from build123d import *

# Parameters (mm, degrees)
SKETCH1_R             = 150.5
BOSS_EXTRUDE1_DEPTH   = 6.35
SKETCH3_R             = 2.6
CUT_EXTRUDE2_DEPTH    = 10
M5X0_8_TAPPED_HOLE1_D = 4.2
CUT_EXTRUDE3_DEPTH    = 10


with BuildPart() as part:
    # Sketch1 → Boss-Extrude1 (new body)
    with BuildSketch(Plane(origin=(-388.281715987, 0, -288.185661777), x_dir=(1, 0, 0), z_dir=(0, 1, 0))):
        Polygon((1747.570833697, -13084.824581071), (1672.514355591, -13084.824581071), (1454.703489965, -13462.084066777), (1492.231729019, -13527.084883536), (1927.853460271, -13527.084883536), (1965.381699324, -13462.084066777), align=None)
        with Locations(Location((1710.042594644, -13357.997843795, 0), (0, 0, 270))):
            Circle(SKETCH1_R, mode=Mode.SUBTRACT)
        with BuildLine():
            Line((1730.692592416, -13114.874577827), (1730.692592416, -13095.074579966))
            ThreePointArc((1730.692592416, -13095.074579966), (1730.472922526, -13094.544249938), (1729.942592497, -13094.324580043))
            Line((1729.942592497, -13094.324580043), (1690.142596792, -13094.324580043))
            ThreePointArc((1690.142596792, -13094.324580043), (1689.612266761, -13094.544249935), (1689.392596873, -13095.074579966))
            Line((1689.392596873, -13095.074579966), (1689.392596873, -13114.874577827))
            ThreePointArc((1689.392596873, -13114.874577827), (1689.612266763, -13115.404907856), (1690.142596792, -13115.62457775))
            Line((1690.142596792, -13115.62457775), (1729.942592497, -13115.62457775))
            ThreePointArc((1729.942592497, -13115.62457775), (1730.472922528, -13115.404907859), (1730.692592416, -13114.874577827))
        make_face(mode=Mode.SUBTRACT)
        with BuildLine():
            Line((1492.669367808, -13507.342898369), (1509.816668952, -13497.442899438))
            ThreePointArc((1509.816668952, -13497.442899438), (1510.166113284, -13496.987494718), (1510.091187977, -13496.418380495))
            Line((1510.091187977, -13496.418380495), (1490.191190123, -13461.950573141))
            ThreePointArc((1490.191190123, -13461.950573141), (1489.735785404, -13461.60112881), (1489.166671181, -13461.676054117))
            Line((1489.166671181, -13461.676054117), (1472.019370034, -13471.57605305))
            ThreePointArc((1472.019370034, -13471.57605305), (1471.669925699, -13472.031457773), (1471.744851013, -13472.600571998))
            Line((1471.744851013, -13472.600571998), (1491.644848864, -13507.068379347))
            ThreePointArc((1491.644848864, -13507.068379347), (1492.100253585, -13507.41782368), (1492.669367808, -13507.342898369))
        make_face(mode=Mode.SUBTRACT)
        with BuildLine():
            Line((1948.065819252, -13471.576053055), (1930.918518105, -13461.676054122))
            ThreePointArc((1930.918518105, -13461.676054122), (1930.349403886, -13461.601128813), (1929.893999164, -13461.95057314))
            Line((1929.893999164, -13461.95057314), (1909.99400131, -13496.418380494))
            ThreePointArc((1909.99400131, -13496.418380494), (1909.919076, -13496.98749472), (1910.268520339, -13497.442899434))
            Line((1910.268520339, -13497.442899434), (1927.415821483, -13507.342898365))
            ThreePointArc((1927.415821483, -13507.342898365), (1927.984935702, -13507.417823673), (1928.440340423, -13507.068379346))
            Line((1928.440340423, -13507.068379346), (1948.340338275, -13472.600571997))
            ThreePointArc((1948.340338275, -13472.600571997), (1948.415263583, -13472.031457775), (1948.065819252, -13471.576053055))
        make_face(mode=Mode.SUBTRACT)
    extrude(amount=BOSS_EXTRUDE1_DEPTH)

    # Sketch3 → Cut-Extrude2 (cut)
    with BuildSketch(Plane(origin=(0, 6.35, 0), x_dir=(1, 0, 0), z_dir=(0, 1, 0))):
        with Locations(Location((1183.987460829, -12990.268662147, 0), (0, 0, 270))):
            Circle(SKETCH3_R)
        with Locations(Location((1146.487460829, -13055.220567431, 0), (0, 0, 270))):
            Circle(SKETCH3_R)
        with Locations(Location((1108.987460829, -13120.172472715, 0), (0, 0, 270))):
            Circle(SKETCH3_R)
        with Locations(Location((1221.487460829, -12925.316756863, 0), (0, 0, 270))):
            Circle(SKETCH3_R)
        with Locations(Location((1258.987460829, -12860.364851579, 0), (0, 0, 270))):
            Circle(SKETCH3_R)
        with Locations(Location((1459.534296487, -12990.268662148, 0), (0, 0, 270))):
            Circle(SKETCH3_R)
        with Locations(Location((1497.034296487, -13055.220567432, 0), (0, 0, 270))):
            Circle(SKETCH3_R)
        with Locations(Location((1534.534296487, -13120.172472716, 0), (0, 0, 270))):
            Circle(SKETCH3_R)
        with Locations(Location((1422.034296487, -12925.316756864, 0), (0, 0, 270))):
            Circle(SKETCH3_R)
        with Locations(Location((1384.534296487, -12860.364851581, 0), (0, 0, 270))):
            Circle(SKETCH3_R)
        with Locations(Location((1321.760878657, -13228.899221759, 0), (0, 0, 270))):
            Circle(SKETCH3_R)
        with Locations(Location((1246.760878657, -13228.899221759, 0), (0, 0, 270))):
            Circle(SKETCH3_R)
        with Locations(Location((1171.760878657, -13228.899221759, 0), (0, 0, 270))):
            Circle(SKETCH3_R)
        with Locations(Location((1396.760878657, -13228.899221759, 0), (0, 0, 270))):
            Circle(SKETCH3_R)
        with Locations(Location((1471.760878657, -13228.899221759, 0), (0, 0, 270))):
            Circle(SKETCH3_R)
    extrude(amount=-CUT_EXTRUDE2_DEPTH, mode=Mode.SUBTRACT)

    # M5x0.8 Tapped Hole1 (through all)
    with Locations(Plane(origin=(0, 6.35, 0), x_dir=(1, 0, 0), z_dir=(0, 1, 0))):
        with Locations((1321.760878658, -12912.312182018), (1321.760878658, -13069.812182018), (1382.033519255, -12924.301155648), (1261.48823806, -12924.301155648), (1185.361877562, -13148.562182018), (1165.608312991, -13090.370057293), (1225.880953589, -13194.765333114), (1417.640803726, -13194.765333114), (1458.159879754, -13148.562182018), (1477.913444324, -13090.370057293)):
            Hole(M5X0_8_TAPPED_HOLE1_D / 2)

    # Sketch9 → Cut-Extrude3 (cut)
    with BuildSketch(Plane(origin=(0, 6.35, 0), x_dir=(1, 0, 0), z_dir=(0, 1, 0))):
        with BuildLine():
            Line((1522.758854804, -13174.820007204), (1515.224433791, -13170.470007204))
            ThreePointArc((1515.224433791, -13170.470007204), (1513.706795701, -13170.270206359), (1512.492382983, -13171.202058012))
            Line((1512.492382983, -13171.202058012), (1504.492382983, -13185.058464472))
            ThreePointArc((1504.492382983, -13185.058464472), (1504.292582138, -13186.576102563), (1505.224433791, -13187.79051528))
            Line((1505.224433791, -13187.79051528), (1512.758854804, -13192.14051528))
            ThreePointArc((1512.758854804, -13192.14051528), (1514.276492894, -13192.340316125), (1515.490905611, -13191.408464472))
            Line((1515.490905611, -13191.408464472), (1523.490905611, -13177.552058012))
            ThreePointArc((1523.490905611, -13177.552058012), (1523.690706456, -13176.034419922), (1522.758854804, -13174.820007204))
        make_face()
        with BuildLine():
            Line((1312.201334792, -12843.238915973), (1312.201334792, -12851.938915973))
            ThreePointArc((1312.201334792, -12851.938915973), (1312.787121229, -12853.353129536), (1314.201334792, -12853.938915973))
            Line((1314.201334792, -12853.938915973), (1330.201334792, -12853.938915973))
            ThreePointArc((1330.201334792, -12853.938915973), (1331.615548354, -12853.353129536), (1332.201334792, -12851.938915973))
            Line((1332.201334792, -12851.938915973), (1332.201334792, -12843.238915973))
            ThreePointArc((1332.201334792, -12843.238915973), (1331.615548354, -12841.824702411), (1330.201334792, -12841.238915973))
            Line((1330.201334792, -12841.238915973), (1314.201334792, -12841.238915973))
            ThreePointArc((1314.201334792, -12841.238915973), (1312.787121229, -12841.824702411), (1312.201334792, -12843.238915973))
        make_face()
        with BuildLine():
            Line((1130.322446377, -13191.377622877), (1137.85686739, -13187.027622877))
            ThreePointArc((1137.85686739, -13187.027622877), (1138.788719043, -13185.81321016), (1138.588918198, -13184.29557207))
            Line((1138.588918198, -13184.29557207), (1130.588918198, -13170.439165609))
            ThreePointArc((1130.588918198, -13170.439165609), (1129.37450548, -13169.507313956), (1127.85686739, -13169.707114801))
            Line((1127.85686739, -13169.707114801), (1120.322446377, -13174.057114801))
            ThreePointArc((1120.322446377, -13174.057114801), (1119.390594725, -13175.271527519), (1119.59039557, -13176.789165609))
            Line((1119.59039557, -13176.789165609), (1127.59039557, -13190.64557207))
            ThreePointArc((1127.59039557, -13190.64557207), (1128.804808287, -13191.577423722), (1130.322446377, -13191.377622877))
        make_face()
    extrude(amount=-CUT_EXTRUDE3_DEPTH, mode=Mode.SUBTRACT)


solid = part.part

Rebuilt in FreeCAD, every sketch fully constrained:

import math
import FreeCAD as App
import Part
import Sketcher

V = App.Vector
Q = App.Units.Quantity

doc = App.newDocument("Part")
body = doc.addObject("PartDesign::Body", "Body")

sketch1 = doc.addObject("Sketcher::SketchObject", "Sketch")
body.addObject(sketch1)
sketch1.AttachmentSupport = (doc.XZ_Plane, [""])
sketch1.MapMode = "FlatFace"
sketch1.addGeometry(Part.LineSegment(V(1359.289118, 12796.638919, 0), V(1284.23264, 12796.638919, 0)), False)
sketch1.addGeometry(Part.LineSegment(V(1284.23264, 12796.638919, 0), V(1066.421774, 13173.898405, 0)), False)
sketch1.addGeometry(Part.LineSegment(V(1066.421774, 13173.898405, 0), V(1103.950013, 13238.899222, 0)), False)
sketch1.addGeometry(Part.LineSegment(V(1103.950013, 13238.899222, 0), V(1539.571744, 13238.899222, 0)), False)
sketch1.addGeometry(Part.LineSegment(V(1539.571744, 13238.899222, 0), V(1577.099983, 13173.898405, 0)), False)
sketch1.addGeometry(Part.LineSegment(V(1577.099983, 13173.898405, 0), V(1359.289118, 12796.638919, 0)), False)
sketch1.addGeometry(Part.LineSegment(V(1121.534953, 13209.257238, 0), V(1104.387652, 13219.157237, 0)), False)
sketch1.addGeometry(Part.ArcOfCircle(Part.Circle(V(1104.012652, 13218.507718, 0), V(0, 0, 1), 0.75), math.radians(60), math.radians(150)), False)
sketch1.addGeometry(Part.LineSegment(V(1103.363133, 13218.882718, 0), V(1083.463135, 13184.41491, 0)), False)
sketch1.addGeometry(Part.ArcOfCircle(Part.Circle(V(1084.112654, 13184.03991, 0), V(0, 0, 1), 0.75), math.radians(149.999999), math.radians(240)), False)
sketch1.addGeometry(Part.LineSegment(V(1083.737654, 13183.390391, 0), V(1100.884955, 13173.490392, 0)), False)
sketch1.addGeometry(Part.ArcOfCircle(Part.Circle(V(1101.259955, 13174.139911, 0), V(0, 0, 1), 0.75), math.radians(-120), math.radians(-30)), False)
sketch1.addGeometry(Part.LineSegment(V(1101.909474, 13173.764911, 0), V(1121.809472, 13208.232719, 0)), False)
sketch1.addGeometry(Part.ArcOfCircle(Part.Circle(V(1121.159953, 13208.607719, 0), V(0, 0, 1), 0.75), math.radians(-30), math.radians(60)), False)
sketch1.addGeometry(Part.LineSegment(V(1542.636802, 13173.490392, 0), V(1559.784103, 13183.390391, 0)), False)
sketch1.addGeometry(Part.ArcOfCircle(Part.Circle(V(1559.409103, 13184.03991, 0), V(0, 0, 1), 0.75), math.radians(-60), math.radians(30)), False)
sketch1.addGeometry(Part.LineSegment(V(1560.058622, 13184.41491, 0), V(1540.158624, 13218.882718, 0)), False)
sketch1.addGeometry(Part.ArcOfCircle(Part.Circle(V(1539.509105, 13218.507718, 0), V(0, 0, 1), 0.75), math.radians(30.000001), math.radians(120)), False)
sketch1.addGeometry(Part.LineSegment(V(1539.134105, 13219.157237, 0), V(1521.986804, 13209.257238, 0)), False)
sketch1.addGeometry(Part.ArcOfCircle(Part.Circle(V(1522.361804, 13208.607719, 0), V(0, 0, 1), 0.75), math.radians(119.999999), math.radians(210.000001)), False)
sketch1.addGeometry(Part.LineSegment(V(1521.712285, 13208.232719, 0), V(1541.612283, 13173.764911, 0)), False)
sketch1.addGeometry(Part.ArcOfCircle(Part.Circle(V(1542.261802, 13174.139911, 0), V(0, 0, 1), 0.75), math.radians(-149.999999), math.radians(-60)), False)
sketch1.addGeometry(Part.Circle(V(1321.760879, 13069.812182, 0), V(0, 0, 1), 150.5), False)
sketch1.addGeometry(Part.LineSegment(V(1342.410876, 12806.888918, 0), V(1342.410876, 12826.688916, 0)), False)
sketch1.addGeometry(Part.ArcOfCircle(Part.Circle(V(1341.660877, 12826.688916, 0), V(0, 0, 1), 0.75), math.radians(-0.000001), math.radians(90)), False)
sketch1.addGeometry(Part.LineSegment(V(1341.660877, 12827.438916, 0), V(1301.860881, 12827.438916, 0)), False)
sketch1.addGeometry(Part.ArcOfCircle(Part.Circle(V(1301.860881, 12826.688916, 0), V(0, 0, 1), 0.75), math.radians(90), math.radians(180)), False)
sketch1.addGeometry(Part.LineSegment(V(1301.110881, 12826.688916, 0), V(1301.110881, 12806.888918, 0)), False)
sketch1.addGeometry(Part.ArcOfCircle(Part.Circle(V(1301.860881, 12806.888918, 0), V(0, 0, 1), 0.75), math.radians(180), math.radians(270)), False)
sketch1.addGeometry(Part.LineSegment(V(1301.860881, 12806.138918, 0), V(1341.660877, 12806.138918, 0)), False)
sketch1.addGeometry(Part.ArcOfCircle(Part.Circle(V(1341.660877, 12806.888918, 0), V(0, 0, 1), 0.75), math.radians(-89.999999), math.radians(0)), False)
sketch1.addConstraint(Sketcher.Constraint("Coincident", 0, 2, 1, 1))
sketch1.addConstraint(Sketcher.Constraint("Coincident", 1, 2, 2, 1))
sketch1.addConstraint(Sketcher.Constraint("Coincident", 2, 2, 3, 1))
sketch1.addConstraint(Sketcher.Constraint("Coincident", 3, 2, 4, 1))
sketch1.addConstraint(Sketcher.Constraint("Coincident", 4, 2, 5, 1))
sketch1.addConstraint(Sketcher.Constraint("Coincident", 5, 2, 0, 1))
sketch1.addConstraint(Sketcher.Constraint("Tangent", 6, 2, 7, 1))
sketch1.addConstraint(Sketcher.Constraint("Tangent", 7, 2, 8, 1))
sketch1.addConstraint(Sketcher.Constraint("Tangent", 8, 2, 9, 1))
sketch1.addConstraint(Sketcher.Constraint("Tangent", 9, 2, 10, 1))
sketch1.addConstraint(Sketcher.Constraint("Tangent", 10, 2, 11, 1))
sketch1.addConstraint(Sketcher.Constraint("Tangent", 11, 2, 12, 1))
sketch1.addConstraint(Sketcher.Constraint("Tangent", 12, 2, 13, 1))
sketch1.addConstraint(Sketcher.Constraint("Tangent", 13, 2, 6, 1))
sketch1.addConstraint(Sketcher.Constraint("Tangent", 14, 2, 15, 1))
sketch1.addConstraint(Sketcher.Constraint("Tangent", 15, 2, 16, 1))
sketch1.addConstraint(Sketcher.Constraint("Tangent", 16, 2, 17, 1))
sketch1.addConstraint(Sketcher.Constraint("Tangent", 17, 2, 18, 1))
sketch1.addConstraint(Sketcher.Constraint("Tangent", 18, 2, 19, 1))
sketch1.addConstraint(Sketcher.Constraint("Tangent", 19, 2, 20, 1))
sketch1.addConstraint(Sketcher.Constraint("Tangent", 20, 2, 21, 1))
sketch1.addConstraint(Sketcher.Constraint("Tangent", 21, 2, 14, 1))
sketch1.addConstraint(Sketcher.Constraint("Tangent", 23, 2, 24, 1))
sketch1.addConstraint(Sketcher.Constraint("Tangent", 24, 2, 25, 1))
sketch1.addConstraint(Sketcher.Constraint("Tangent", 25, 2, 26, 1))
sketch1.addConstraint(Sketcher.Constraint("Tangent", 26, 2, 27, 1))
sketch1.addConstraint(Sketcher.Constraint("Tangent", 27, 2, 28, 1))
sketch1.addConstraint(Sketcher.Constraint("Tangent", 28, 2, 29, 1))
sketch1.addConstraint(Sketcher.Constraint("Tangent", 29, 2, 30, 1))
sketch1.addConstraint(Sketcher.Constraint("Tangent", 30, 2, 23, 1))
sketch1.addConstraint(Sketcher.Constraint("Horizontal", 0))
sketch1.addConstraint(Sketcher.Constraint("Horizontal", 3))
sketch1.addConstraint(Sketcher.Constraint("Vertical", 23))
sketch1.addConstraint(Sketcher.Constraint("Horizontal", 25))
sketch1.addConstraint(Sketcher.Constraint("Vertical", 27))
sketch1.addConstraint(Sketcher.Constraint("Horizontal", 29))
sketch1.addConstraint(Sketcher.Constraint("Equal", 7, 9))
sketch1.addConstraint(Sketcher.Constraint("Equal", 9, 11))
sketch1.addConstraint(Sketcher.Constraint("Equal", 11, 13))
sketch1.addConstraint(Sketcher.Constraint("Equal", 13, 15))
sketch1.addConstraint(Sketcher.Constraint("Equal", 15, 17))
sketch1.addConstraint(Sketcher.Constraint("Equal", 17, 19))
sketch1.addConstraint(Sketcher.Constraint("Equal", 19, 21))
sketch1.addConstraint(Sketcher.Constraint("Equal", 21, 24))
sketch1.addConstraint(Sketcher.Constraint("Equal", 24, 26))
sketch1.addConstraint(Sketcher.Constraint("Equal", 26, 28))
sketch1.addConstraint(Sketcher.Constraint("Equal", 28, 30))
sketch1.addConstraint(Sketcher.Constraint("Parallel", 1, 4))
sketch1.addConstraint(Sketcher.Constraint("Parallel", 2, 5))
sketch1.addConstraint(Sketcher.Constraint("Perpendicular", 5, 6))
sketch1.addConstraint(Sketcher.Constraint("Perpendicular", 6, 8))
sketch1.addConstraint(Sketcher.Constraint("Perpendicular", 8, 10))
sketch1.addConstraint(Sketcher.Constraint("Perpendicular", 10, 12))
sketch1.addConstraint(Sketcher.Constraint("Perpendicular", 4, 14))
sketch1.addConstraint(Sketcher.Constraint("Perpendicular", 14, 16))
sketch1.addConstraint(Sketcher.Constraint("Perpendicular", 16, 18))
sketch1.addConstraint(Sketcher.Constraint("Perpendicular", 18, 20))
sketch1.addConstraint(Sketcher.Constraint("Horizontal", 9, 3, 15, 3))
sketch1.addConstraint(Sketcher.Constraint("Horizontal", 7, 3, 17, 3))
sketch1.addConstraint(Sketcher.Constraint("Horizontal", 13, 3, 19, 3))
sketch1.addConstraint(Sketcher.Constraint("Horizontal", 1, 2, 4, 2))
sketch1.addConstraint(Sketcher.Constraint("Equal", 2, 4))
sketch1.addConstraint(Sketcher.Constraint("Diameter", 22, Q("301 mm")))
sketch1.addConstraint(Sketcher.Constraint("Angle", 1, Q("120 deg")))
sketch1.addConstraint(Sketcher.Constraint("Radius", 7, Q("0.75 mm")))
sketch1.addConstraint(Sketcher.Constraint("DistanceY", 11, 3, 9, 3, Q("9.899999 mm")))
sketch1.addConstraint(Sketcher.Constraint("DistanceY", 0, 2, 28, 2, Q("9.499999 mm")))
sketch1.addConstraint(Sketcher.Constraint("DistanceX", 0, 2, 0, 1, Q("75.056478 mm")))
sketch1.addConstraint(Sketcher.Constraint("DistanceX", 3, 1, 3, 2, Q("435.621731 mm")))
sketch1.addConstraint(Sketcher.Constraint("DistanceX", 9, 3, 13, 3, Q("37.047299 mm")))
sketch1.addConstraint(Sketcher.Constraint("DistanceX", 20, 2, 4, 2, Q("35.4877 mm")))
sketch1.addConstraint(Sketcher.Constraint("Distance", 1, Q("435.621731 mm")))
sketch1.addConstraint(Sketcher.Constraint("DistanceX", 25, 2, 25, 1, Q("39.799996 mm")))
sketch1.addConstraint(Sketcher.Constraint("DistanceY", 23, 1, 23, 2, Q("19.799998 mm")))
sketch1.addConstraint(Sketcher.Constraint("DistanceX", -1, 1, 7, 3, Q("1104.012652 mm")))
sketch1.addConstraint(Sketcher.Constraint("DistanceY", -1, 1, 9, 3, Q("13184.03991 mm")))
sketch1.addConstraint(Sketcher.Constraint("DistanceX", -1, 1, 22, 3, Q("1321.760879 mm")))
sketch1.addConstraint(Sketcher.Constraint("DistanceX", -1, 1, 26, 3, Q("1301.860881 mm")))
sketch1.addConstraint(Sketcher.Constraint("DistanceY", -1, 1, 28, 3, Q("12806.888918 mm")))
sketch1.addConstraint(Sketcher.Constraint("DistanceX", -1, 1, 0, 2, Q("1284.23264 mm")))
sketch1.addConstraint(Sketcher.Constraint("DistanceY", 22, 3, 21, 3, Q("104.327729 mm")))
pad1 = doc.addObject("PartDesign::Pad", "Pad")
body.addObject(pad1)
pad1.Profile = sketch1
pad1.Length = 6.35
pad1.Reversed = True

sketch2 = doc.addObject("Sketcher::SketchObject", "Sketch001")
body.addObject(sketch2)
sketch2.AttachmentSupport = (doc.XZ_Plane, [""])
sketch2.MapMode = "FlatFace"
sketch2.AttachmentOffset = App.Placement(V(0, 0, -6.35), App.Rotation())
sketch2.addGeometry(Part.Circle(V(1184, 12990.3, 0), V(0, 0, 1), 2.6), False)
sketch2.addGeometry(Part.Circle(V(1146.5, 13055.2, 0), V(0, 0, 1), 2.6), False)
sketch2.addGeometry(Part.Circle(V(1109, 13120.2, 0), V(0, 0, 1), 2.6), False)
sketch2.addGeometry(Part.Circle(V(1221.5, 12925.3, 0), V(0, 0, 1), 2.6), False)
sketch2.addGeometry(Part.Circle(V(1259, 12860.4, 0), V(0, 0, 1), 2.6), False)
sketch2.addGeometry(Part.Circle(V(1459.5, 12990.3, 0), V(0, 0, 1), 2.6), False)
sketch2.addGeometry(Part.Circle(V(1497, 13055.2, 0), V(0, 0, 1), 2.6), False)
sketch2.addGeometry(Part.Circle(V(1534.5, 13120.2, 0), V(0, 0, 1), 2.6), False)
sketch2.addGeometry(Part.Circle(V(1422, 12925.3, 0), V(0, 0, 1), 2.6), False)
sketch2.addGeometry(Part.Circle(V(1384.5, 12860.4, 0), V(0, 0, 1), 2.6), False)
sketch2.addGeometry(Part.Circle(V(1321.8, 13228.9, 0), V(0, 0, 1), 2.6), False)
sketch2.addGeometry(Part.Circle(V(1246.8, 13228.9, 0), V(0, 0, 1), 2.6), False)
sketch2.addGeometry(Part.Circle(V(1171.8, 13228.9, 0), V(0, 0, 1), 2.6), False)
sketch2.addGeometry(Part.Circle(V(1396.8, 13228.9, 0), V(0, 0, 1), 2.6), False)
sketch2.addGeometry(Part.Circle(V(1471.8, 13228.9, 0), V(0, 0, 1), 2.6), False)
sketch2.addConstraint(Sketcher.Constraint("Equal", 0, 1))
sketch2.addConstraint(Sketcher.Constraint("Equal", 1, 2))
sketch2.addConstraint(Sketcher.Constraint("Equal", 2, 3))
sketch2.addConstraint(Sketcher.Constraint("Equal", 3, 4))
sketch2.addConstraint(Sketcher.Constraint("Equal", 4, 5))
sketch2.addConstraint(Sketcher.Constraint("Equal", 5, 6))
sketch2.addConstraint(Sketcher.Constraint("Equal", 6, 7))
sketch2.addConstraint(Sketcher.Constraint("Equal", 7, 8))
sketch2.addConstraint(Sketcher.Constraint("Equal", 8, 9))
sketch2.addConstraint(Sketcher.Constraint("Equal", 9, 10))
sketch2.addConstraint(Sketcher.Constraint("Equal", 10, 11))
sketch2.addConstraint(Sketcher.Constraint("Equal", 11, 12))
sketch2.addConstraint(Sketcher.Constraint("Equal", 12, 13))
sketch2.addConstraint(Sketcher.Constraint("Equal", 13, 14))
sketch2.addConstraint(Sketcher.Constraint("Horizontal", 0, 3, 5, 3))
sketch2.addConstraint(Sketcher.Constraint("Horizontal", 1, 3, 6, 3))
sketch2.addConstraint(Sketcher.Constraint("Horizontal", 2, 3, 7, 3))
sketch2.addConstraint(Sketcher.Constraint("Horizontal", 3, 3, 8, 3))
sketch2.addConstraint(Sketcher.Constraint("Horizontal", 4, 3, 9, 3))
sketch2.addConstraint(Sketcher.Constraint("Horizontal", 10, 3, 11, 3))
sketch2.addConstraint(Sketcher.Constraint("Horizontal", 11, 3, 12, 3))
sketch2.addConstraint(Sketcher.Constraint("Horizontal", 12, 3, 13, 3))
sketch2.addConstraint(Sketcher.Constraint("Horizontal", 13, 3, 14, 3))
sketch2.addConstraint(Sketcher.Constraint("Diameter", 0, Q("5.2 mm")))
sketch2.addConstraint(Sketcher.Constraint("DistanceX", 2, 3, 0, 3, Q("75 mm")))
sketch2.addConstraint(Sketcher.Constraint("DistanceX", 1, 3, 3, 3, Q("75 mm")))
sketch2.addConstraint(Sketcher.Constraint("DistanceX", 0, 3, 4, 3, Q("75 mm")))
sketch2.addConstraint(Sketcher.Constraint("DistanceX", 5, 3, 7, 3, Q("75 mm")))
sketch2.addConstraint(Sketcher.Constraint("DistanceX", 8, 3, 6, 3, Q("75 mm")))
sketch2.addConstraint(Sketcher.Constraint("DistanceX", 9, 3, 5, 3, Q("75 mm")))
sketch2.addConstraint(Sketcher.Constraint("DistanceX", 11, 3, 10, 3, Q("75 mm")))
sketch2.addConstraint(Sketcher.Constraint("DistanceX", 12, 3, 11, 3, Q("75 mm")))
sketch2.addConstraint(Sketcher.Constraint("DistanceX", 10, 3, 13, 3, Q("75 mm")))
sketch2.addConstraint(Sketcher.Constraint("DistanceX", 13, 3, 14, 3, Q("75 mm")))
sketch2.addConstraint(Sketcher.Constraint("DistanceX", 1, 3, 0, 3, Q("37.5 mm")))
sketch2.addConstraint(Sketcher.Constraint("DistanceX", 5, 3, 6, 3, Q("37.5 mm")))
sketch2.addConstraint(Sketcher.Constraint("DistanceX", -1, 1, 0, 3, Q("1183.987461 mm")))
sketch2.addConstraint(Sketcher.Constraint("DistanceY", -1, 1, 4, 3, Q("12860.364852 mm")))
sketch2.addConstraint(Sketcher.Constraint("DistanceX", -1, 1, 10, 3, Q("1321.760879 mm")))
sketch2.addConstraint(Sketcher.Constraint("DistanceY", -1, 1, 10, 3, Q("13228.899222 mm")))
sketch2.addConstraint(Sketcher.Constraint("DistanceY", 0, 3, 2, 3, Q("129.903811 mm")))
sketch2.addConstraint(Sketcher.Constraint("DistanceY", 3, 3, 1, 3, Q("129.903811 mm")))
sketch2.addConstraint(Sketcher.Constraint("DistanceY", 4, 3, 0, 3, Q("129.903811 mm")))
sketch2.addConstraint(Sketcher.Constraint("DistanceY", -1, 1, 1, 3, Q("13055.220567 mm")))
sketch2.addConstraint(Sketcher.Constraint("DistanceX", -1, 1, 5, 3, Q("1459.534296 mm")))
pocket1 = doc.addObject("PartDesign::Pocket", "Pocket")
body.addObject(pocket1)
pocket1.Profile = sketch2
pocket1.Length = 10
pocket1.Reversed = True

sketch3 = doc.addObject("Sketcher::SketchObject", "Sketch002")
body.addObject(sketch3)
sketch3.AttachmentSupport = (doc.XZ_Plane, [""])
sketch3.MapMode = "FlatFace"
sketch3.AttachmentOffset = App.Placement(V(0, 0, -6.35), App.Rotation())
sketch3.addGeometry(Part.Circle(V(1321.8, 12912.3, 0), V(0, 0, 1), 2.1), False)
sketch3.addGeometry(Part.Circle(V(1321.8, 13069.8, 0), V(0, 0, 1), 2.1), False)
sketch3.addGeometry(Part.Circle(V(1382, 12924.3, 0), V(0, 0, 1), 2.1), False)
sketch3.addGeometry(Part.Circle(V(1261.5, 12924.3, 0), V(0, 0, 1), 2.1), False)
sketch3.addGeometry(Part.Circle(V(1185.4, 13148.6, 0), V(0, 0, 1), 2.1), False)
sketch3.addGeometry(Part.Circle(V(1165.6, 13090.4, 0), V(0, 0, 1), 2.1), False)
sketch3.addGeometry(Part.Circle(V(1225.9, 13194.8, 0), V(0, 0, 1), 2.1), False)
sketch3.addGeometry(Part.Circle(V(1417.6, 13194.8, 0), V(0, 0, 1), 2.1), False)
sketch3.addGeometry(Part.Circle(V(1458.2, 13148.6, 0), V(0, 0, 1), 2.1), False)
sketch3.addGeometry(Part.Circle(V(1477.9, 13090.4, 0), V(0, 0, 1), 2.1), False)
sketch3.addConstraint(Sketcher.Constraint("Equal", 0, 1))
sketch3.addConstraint(Sketcher.Constraint("Equal", 1, 2))
sketch3.addConstraint(Sketcher.Constraint("Equal", 2, 3))
sketch3.addConstraint(Sketcher.Constraint("Equal", 3, 4))
sketch3.addConstraint(Sketcher.Constraint("Equal", 4, 5))
sketch3.addConstraint(Sketcher.Constraint("Equal", 5, 6))
sketch3.addConstraint(Sketcher.Constraint("Equal", 6, 7))
sketch3.addConstraint(Sketcher.Constraint("Equal", 7, 8))
sketch3.addConstraint(Sketcher.Constraint("Equal", 8, 9))
sketch3.addConstraint(Sketcher.Constraint("Horizontal", 2, 3, 3, 3))
sketch3.addConstraint(Sketcher.Constraint("Horizontal", 6, 3, 7, 3))
sketch3.addConstraint(Sketcher.Constraint("Horizontal", 4, 3, 8, 3))
sketch3.addConstraint(Sketcher.Constraint("Horizontal", 5, 3, 9, 3))
sketch3.addConstraint(Sketcher.Constraint("Vertical", 0, 3, 1, 3))
sketch3.addConstraint(Sketcher.Constraint("Diameter", 0, Q("4.2 mm")))
sketch3.addConstraint(Sketcher.Constraint("DistanceY", 0, 3, 1, 3, Q("157.5 mm")))
sketch3.addConstraint(Sketcher.Constraint("DistanceY", 1, 3, 4, 3, Q("78.75 mm")))
sketch3.addConstraint(Sketcher.Constraint("DistanceX", 4, 3, 1, 3, Q("136.399001 mm")))
sketch3.addConstraint(Sketcher.Constraint("DistanceX", 1, 3, 8, 3, Q("136.399001 mm")))
sketch3.addConstraint(Sketcher.Constraint("DistanceY", 3, 3, 5, 3, Q("166.068902 mm")))
sketch3.addConstraint(Sketcher.Constraint("DistanceX", -1, 1, 0, 3, Q("1321.760879 mm")))
sketch3.addConstraint(Sketcher.Constraint("DistanceX", -1, 1, 2, 3, Q("1382.033519 mm")))
sketch3.addConstraint(Sketcher.Constraint("DistanceX", -1, 1, 3, 3, Q("1261.488238 mm")))
sketch3.addConstraint(Sketcher.Constraint("DistanceY", 4, 3, 6, 3, Q("46.203151 mm")))
sketch3.addConstraint(Sketcher.Constraint("DistanceX", 5, 3, 6, 3, Q("60.272641 mm")))
sketch3.addConstraint(Sketcher.Constraint("DistanceX", 6, 3, 7, 3, Q("191.75985 mm")))
sketch3.addConstraint(Sketcher.Constraint("DistanceX", 7, 3, 9, 3, Q("60.272641 mm")))
sketch3.addConstraint(Sketcher.Constraint("DistanceY", -1, 1, 0, 3, Q("12912.312182 mm")))
sketch3.addConstraint(Sketcher.Constraint("DistanceY", -1, 1, 2, 3, Q("12924.301156 mm")))
sketch3.addConstraint(Sketcher.Constraint("DistanceX", -1, 1, 5, 3, Q("1165.608313 mm")))
doc.recompute()
hole = doc.addObject("PartDesign::Hole", "Hole")
body.addObject(hole)
hole.Profile = sketch3
hole.ThreadType = "None"
hole.Diameter = 4.2
hole.DepthType = "ThroughAll"
hole.Reversed = True

sketch4 = doc.addObject("Sketcher::SketchObject", "Sketch003")
body.addObject(sketch4)
sketch4.AttachmentSupport = (doc.XZ_Plane, [""])
sketch4.MapMode = "FlatFace"
sketch4.AttachmentOffset = App.Placement(V(0, 0, -6.35), App.Rotation())
sketch4.addGeometry(Part.LineSegment(V(1522.8, 13174.8, 0), V(1515.2, 13170.5, 0)), False)
sketch4.addGeometry(Part.ArcOfCircle(Part.Circle(V(1514.2, 13172.2, 0), V(0, 0, 1), 2), math.radians(-150), math.radians(-60)), False)
sketch4.addGeometry(Part.LineSegment(V(1512.5, 13171.2, 0), V(1504.5, 13185.1, 0)), False)
sketch4.addGeometry(Part.ArcOfCircle(Part.Circle(V(1506.2, 13186.1, 0), V(0, 0, 1), 2), math.radians(120), math.radians(210)), False)
sketch4.addGeometry(Part.LineSegment(V(1505.2, 13187.8, 0), V(1512.8, 13192.1, 0)), False)
sketch4.addGeometry(Part.ArcOfCircle(Part.Circle(V(1513.8, 13190.4, 0), V(0, 0, 1), 2), math.radians(30), math.radians(120)), False)
sketch4.addGeometry(Part.LineSegment(V(1515.5, 13191.4, 0), V(1523.5, 13177.6, 0)), False)
sketch4.addGeometry(Part.ArcOfCircle(Part.Circle(V(1521.8, 13176.6, 0), V(0, 0, 1), 2), math.radians(-60), math.radians(30)), False)
sketch4.addGeometry(Part.LineSegment(V(1312.2, 12843.2, 0), V(1312.2, 12851.9, 0)), False)
sketch4.addGeometry(Part.ArcOfCircle(Part.Circle(V(1314.2, 12851.9, 0), V(0, 0, 1), 2), math.radians(90), math.radians(180)), False)
sketch4.addGeometry(Part.LineSegment(V(1314.2, 12853.9, 0), V(1330.2, 12853.9, 0)), False)
sketch4.addGeometry(Part.ArcOfCircle(Part.Circle(V(1330.2, 12851.9, 0), V(0, 0, 1), 2), math.radians(0), math.radians(90)), False)
sketch4.addGeometry(Part.LineSegment(V(1332.2, 12851.9, 0), V(1332.2, 12843.2, 0)), False)
sketch4.addGeometry(Part.ArcOfCircle(Part.Circle(V(1330.2, 12843.2, 0), V(0, 0, 1), 2), math.radians(-90), math.radians(0)), False)
sketch4.addGeometry(Part.LineSegment(V(1330.2, 12841.2, 0), V(1314.2, 12841.2, 0)), False)
sketch4.addGeometry(Part.ArcOfCircle(Part.Circle(V(1314.2, 12843.2, 0), V(0, 0, 1), 2), math.radians(180), math.radians(270)), False)
sketch4.addGeometry(Part.LineSegment(V(1130.3, 13191.4, 0), V(1137.9, 13187, 0)), False)
sketch4.addGeometry(Part.ArcOfCircle(Part.Circle(V(1136.9, 13185.3, 0), V(0, 0, 1), 2), math.radians(-30), math.radians(60)), False)
sketch4.addGeometry(Part.LineSegment(V(1138.6, 13184.3, 0), V(1130.6, 13170.4, 0)), False)
sketch4.addGeometry(Part.ArcOfCircle(Part.Circle(V(1128.9, 13171.4, 0), V(0, 0, 1), 2), math.radians(-120), math.radians(-30)), False)
sketch4.addGeometry(Part.LineSegment(V(1127.9, 13169.7, 0), V(1120.3, 13174.1, 0)), False)
sketch4.addGeometry(Part.ArcOfCircle(Part.Circle(V(1121.3, 13175.8, 0), V(0, 0, 1), 2), math.radians(150), math.radians(240)), False)
sketch4.addGeometry(Part.LineSegment(V(1119.6, 13176.8, 0), V(1127.6, 13190.6, 0)), False)
sketch4.addGeometry(Part.ArcOfCircle(Part.Circle(V(1129.3, 13189.6, 0), V(0, 0, 1), 2), math.radians(60), math.radians(150)), False)
sketch4.addConstraint(Sketcher.Constraint("Tangent", 0, 2, 1, 2))
sketch4.addConstraint(Sketcher.Constraint("Tangent", 1, 1, 2, 1))
sketch4.addConstraint(Sketcher.Constraint("Tangent", 2, 2, 3, 2))
sketch4.addConstraint(Sketcher.Constraint("Tangent", 3, 1, 4, 1))
sketch4.addConstraint(Sketcher.Constraint("Tangent", 4, 2, 5, 2))
sketch4.addConstraint(Sketcher.Constraint("Tangent", 5, 1, 6, 1))
sketch4.addConstraint(Sketcher.Constraint("Tangent", 6, 2, 7, 2))
sketch4.addConstraint(Sketcher.Constraint("Tangent", 7, 1, 0, 1))
sketch4.addConstraint(Sketcher.Constraint("Tangent", 8, 2, 9, 2))
sketch4.addConstraint(Sketcher.Constraint("Tangent", 9, 1, 10, 1))
sketch4.addConstraint(Sketcher.Constraint("Tangent", 10, 2, 11, 2))
sketch4.addConstraint(Sketcher.Constraint("Tangent", 11, 1, 12, 1))
sketch4.addConstraint(Sketcher.Constraint("Tangent", 12, 2, 13, 2))
sketch4.addConstraint(Sketcher.Constraint("Tangent", 13, 1, 14, 1))
sketch4.addConstraint(Sketcher.Constraint("Tangent", 14, 2, 15, 2))
sketch4.addConstraint(Sketcher.Constraint("Tangent", 15, 1, 8, 1))
sketch4.addConstraint(Sketcher.Constraint("Tangent", 16, 2, 17, 2))
sketch4.addConstraint(Sketcher.Constraint("Tangent", 17, 1, 18, 1))
sketch4.addConstraint(Sketcher.Constraint("Tangent", 18, 2, 19, 2))
sketch4.addConstraint(Sketcher.Constraint("Tangent", 19, 1, 20, 1))
sketch4.addConstraint(Sketcher.Constraint("Tangent", 20, 2, 21, 2))
sketch4.addConstraint(Sketcher.Constraint("Tangent", 21, 1, 22, 1))
sketch4.addConstraint(Sketcher.Constraint("Tangent", 22, 2, 23, 2))
sketch4.addConstraint(Sketcher.Constraint("Tangent", 23, 1, 16, 1))
sketch4.addConstraint(Sketcher.Constraint("Vertical", 8))
sketch4.addConstraint(Sketcher.Constraint("Horizontal", 10))
sketch4.addConstraint(Sketcher.Constraint("Vertical", 12))
sketch4.addConstraint(Sketcher.Constraint("Horizontal", 14))
sketch4.addConstraint(Sketcher.Constraint("Equal", 1, 3))
sketch4.addConstraint(Sketcher.Constraint("Equal", 3, 5))
sketch4.addConstraint(Sketcher.Constraint("Equal", 5, 7))
sketch4.addConstraint(Sketcher.Constraint("Equal", 7, 9))
sketch4.addConstraint(Sketcher.Constraint("Equal", 9, 11))
sketch4.addConstraint(Sketcher.Constraint("Equal", 11, 13))
sketch4.addConstraint(Sketcher.Constraint("Equal", 13, 15))
sketch4.addConstraint(Sketcher.Constraint("Equal", 15, 17))
sketch4.addConstraint(Sketcher.Constraint("Equal", 17, 19))
sketch4.addConstraint(Sketcher.Constraint("Equal", 19, 21))
sketch4.addConstraint(Sketcher.Constraint("Equal", 21, 23))
sketch4.addConstraint(Sketcher.Constraint("Perpendicular", 0, 2))
sketch4.addConstraint(Sketcher.Constraint("Perpendicular", 2, 4))
sketch4.addConstraint(Sketcher.Constraint("Perpendicular", 4, 6))
sketch4.addConstraint(Sketcher.Constraint("Perpendicular", 16, 18))
sketch4.addConstraint(Sketcher.Constraint("Perpendicular", 18, 20))
sketch4.addConstraint(Sketcher.Constraint("Perpendicular", 20, 22))
sketch4.addConstraint(Sketcher.Constraint("Equal", 4, 16))
sketch4.addConstraint(Sketcher.Constraint("Equal", 6, 18))
sketch4.addConstraint(Sketcher.Constraint("Radius", 1, Q("2 mm")))
sketch4.addConstraint(Sketcher.Constraint("DistanceX", 10, 1, 10, 2, Q("16 mm")))
sketch4.addConstraint(Sketcher.Constraint("Angle", 0, Q("-150 deg")))
sketch4.addConstraint(Sketcher.Constraint("Angle", 16, Q("-30 deg")))
sketch4.addConstraint(Sketcher.Constraint("Distance", 2, Q("16 mm")))
sketch4.addConstraint(Sketcher.Constraint("DistanceY", 8, 1, 8, 2, Q("8.7 mm")))
sketch4.addConstraint(Sketcher.Constraint("Distance", 0, Q("8.7 mm")))
sketch4.addConstraint(Sketcher.Constraint("DistanceX", 9, 3, 1, 3, Q("200.023099 mm")))
sketch4.addConstraint(Sketcher.Constraint("DistanceY", 19, 3, 3, 3, Q("14.619299 mm")))
sketch4.addConstraint(Sketcher.Constraint("DistanceY", -1, 1, 1, 3, Q("13172.202058 mm")))
sketch4.addConstraint(Sketcher.Constraint("DistanceX", -1, 1, 17, 1, Q("1138.588918 mm")))
sketch4.addConstraint(Sketcher.Constraint("DistanceY", 9, 3, 3, 3, Q("334.119548 mm")))
sketch4.addConstraint(Sketcher.Constraint("DistanceX", 21, 3, 9, 3, Q("192.878888 mm")))
pocket2 = doc.addObject("PartDesign::Pocket", "Pocket001")
body.addObject(pocket2)
pocket2.Profile = sketch4
pocket2.Length = 10
pocket2.Reversed = True

doc.recompute()
